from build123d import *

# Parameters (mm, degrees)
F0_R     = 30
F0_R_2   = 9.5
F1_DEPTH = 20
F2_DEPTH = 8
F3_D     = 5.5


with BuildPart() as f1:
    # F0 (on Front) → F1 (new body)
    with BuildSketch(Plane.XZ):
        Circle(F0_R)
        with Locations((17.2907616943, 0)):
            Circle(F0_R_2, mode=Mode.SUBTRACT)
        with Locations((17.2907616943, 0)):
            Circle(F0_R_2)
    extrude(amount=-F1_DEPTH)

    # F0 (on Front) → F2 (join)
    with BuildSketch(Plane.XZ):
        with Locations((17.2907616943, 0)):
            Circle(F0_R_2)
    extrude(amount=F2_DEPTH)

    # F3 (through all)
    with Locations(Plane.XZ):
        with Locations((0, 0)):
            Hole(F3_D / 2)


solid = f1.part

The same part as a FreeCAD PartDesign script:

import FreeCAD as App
import Part
import Sketcher
from FreeCAD import Vector
Q = App.Units.Quantity

doc = App.newDocument("Part")
params = doc.addObject("Spreadsheet::Sheet", "Params")
for row, (alias, value) in enumerate([
    ("sketch1_diameter", "60 mm"),
    ("pad1_length", "20 mm"),
    ("sketch2_diameter", "19 mm"),
    ("pad2_length", "8 mm"),
    ("sketch3_diameter", "5.5 mm"),
    ("hole_diameter", "5.5 mm"),
], start=1):
    params.set(f"A{row}", alias)
    params.set(f"B{row}", "=" + value)
    params.setAlias(f"B{row}", alias)

body = doc.addObject("PartDesign::Body", "Body")

sketch1 = body.newObject("Sketcher::SketchObject", "Sketch")
sketch1.AttachmentSupport = (doc.getObject("XZ_Plane"), [""])
sketch1.MapMode = "FlatFace"
sketch1.addGeometry(Part.Circle(Vector(0, 0, 0), Vector(0, 0, 1), 30), False)
sketch1.addConstraint([
    Sketcher.Constraint("Coincident", 0, 3, -1, 1),
    Sketcher.Constraint("Diameter", 0, Q("60 mm")),
])
sketch1.setExpression("Constraints[1]", "Params.sketch1_diameter")
pad1 = body.newObject("PartDesign::Pad", "Pad")
pad1.Profile = sketch1
pad1.setExpression("Length", "Params.pad1_length")
pad1.Reversed = True

sketch2 = body.newObject("Sketcher::SketchObject", "Sketch001")
sketch2.AttachmentSupport = (doc.getObject("XZ_Plane"), [""])
sketch2.MapMode = "FlatFace"
sketch2.addGeometry(Part.Circle(Vector(17, 0, 0), Vector(0, 0, 1), 10), False)
sketch2.addConstraint([
    Sketcher.Constraint("PointOnObject", 0, 3, -1),
    Sketcher.Constraint("Diameter", 0, Q("19 mm")),
    Sketcher.Constraint("DistanceX", -1, 1, 0, 3, Q("17.290762 mm")),
])
sketch2.setExpression("Constraints[1]", "Params.sketch2_diameter")
pad2 = body.newObject("PartDesign::Pad", "Pad001")
pad2.Profile = sketch2
pad2.setExpression("Length", "Params.pad2_length")

sketch3 = body.newObject("Sketcher::SketchObject", "Sketch002")
sketch3.AttachmentSupport = (doc.getObject("XZ_Plane"), [""])
sketch3.MapMode = "FlatFace"
sketch3.addGeometry(Part.Circle(Vector(0, 0, 0), Vector(0, 0, 1), 2.8), False)
sketch3.addConstraint([
    Sketcher.Constraint("Coincident", 0, 3, -1, 1),
    Sketcher.Constraint("Diameter", 0, Q("5.5 mm")),
])
sketch3.setExpression("Constraints[1]", "Params.sketch3_diameter")
doc.recompute()
hole = body.newObject("PartDesign::Hole", "Hole")
hole.Profile = sketch3
hole.ThreadType = "None"
hole.setExpression("Diameter", "Params.hole_diameter")
hole.DepthType = "ThroughAll"

doc.recompute()
